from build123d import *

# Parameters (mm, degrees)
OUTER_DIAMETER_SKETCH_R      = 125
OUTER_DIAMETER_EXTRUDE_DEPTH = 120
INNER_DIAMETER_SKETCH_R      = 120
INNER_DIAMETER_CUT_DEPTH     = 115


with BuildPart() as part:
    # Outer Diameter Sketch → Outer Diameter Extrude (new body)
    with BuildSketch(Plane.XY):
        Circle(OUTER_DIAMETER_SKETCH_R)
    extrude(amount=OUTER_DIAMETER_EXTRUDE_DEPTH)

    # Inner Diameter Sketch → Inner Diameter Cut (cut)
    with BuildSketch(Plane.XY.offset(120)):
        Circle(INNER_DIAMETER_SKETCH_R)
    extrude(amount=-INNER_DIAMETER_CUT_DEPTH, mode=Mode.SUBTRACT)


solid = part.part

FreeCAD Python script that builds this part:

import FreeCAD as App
import Part
import Sketcher

doc = App.newDocument("Part")
body = doc.addObject("PartDesign::Body", "Body")

# Sketch on XY plane
sketch1 = body.newObject("Sketcher::SketchObject", "Sketch")
sketch1.AttachmentSupport = (doc.getObject("XY_Plane"), [""])
sketch1.MapMode = "FlatFace"
sketch1.addGeometry(Part.Circle(App.Vector(0, 0, 0), App.Vector(0, 0, 1), 125), False)
sketch1.addConstraint(Sketcher.Constraint("Coincident", 0, 3, -1, 1))
sketch1.addConstraint(Sketcher.Constraint("Diameter", 0, 250.0))
pad1 = body.newObject("PartDesign::Pad", "Pad")
pad1.Profile = sketch1
pad1.Length = 120

# Sketch on XY plane
sketch2 = body.newObject("Sketcher::SketchObject", "Sketch001")
sketch2.AttachmentSupport = (doc.getObject("XY_Plane"), [""])
sketch2.MapMode = "FlatFace"
sketch2.AttachmentOffset = App.Placement(App.Vector(0, 0, 120), App.Rotation())
sketch2.addGeometry(Part.Circle(App.Vector(0, 0, 0), App.Vector(0, 0, 1), 120), False)
sketch2.addConstraint(Sketcher.Constraint("Coincident", 0, 3, -1, 1))
sketch2.addConstraint(Sketcher.Constraint("Diameter", 0, 240.0))
pocket1 = body.newObject("PartDesign::Pocket", "Pocket")
pocket1.Profile = sketch2
pocket1.Length = 115

doc.recompute()
